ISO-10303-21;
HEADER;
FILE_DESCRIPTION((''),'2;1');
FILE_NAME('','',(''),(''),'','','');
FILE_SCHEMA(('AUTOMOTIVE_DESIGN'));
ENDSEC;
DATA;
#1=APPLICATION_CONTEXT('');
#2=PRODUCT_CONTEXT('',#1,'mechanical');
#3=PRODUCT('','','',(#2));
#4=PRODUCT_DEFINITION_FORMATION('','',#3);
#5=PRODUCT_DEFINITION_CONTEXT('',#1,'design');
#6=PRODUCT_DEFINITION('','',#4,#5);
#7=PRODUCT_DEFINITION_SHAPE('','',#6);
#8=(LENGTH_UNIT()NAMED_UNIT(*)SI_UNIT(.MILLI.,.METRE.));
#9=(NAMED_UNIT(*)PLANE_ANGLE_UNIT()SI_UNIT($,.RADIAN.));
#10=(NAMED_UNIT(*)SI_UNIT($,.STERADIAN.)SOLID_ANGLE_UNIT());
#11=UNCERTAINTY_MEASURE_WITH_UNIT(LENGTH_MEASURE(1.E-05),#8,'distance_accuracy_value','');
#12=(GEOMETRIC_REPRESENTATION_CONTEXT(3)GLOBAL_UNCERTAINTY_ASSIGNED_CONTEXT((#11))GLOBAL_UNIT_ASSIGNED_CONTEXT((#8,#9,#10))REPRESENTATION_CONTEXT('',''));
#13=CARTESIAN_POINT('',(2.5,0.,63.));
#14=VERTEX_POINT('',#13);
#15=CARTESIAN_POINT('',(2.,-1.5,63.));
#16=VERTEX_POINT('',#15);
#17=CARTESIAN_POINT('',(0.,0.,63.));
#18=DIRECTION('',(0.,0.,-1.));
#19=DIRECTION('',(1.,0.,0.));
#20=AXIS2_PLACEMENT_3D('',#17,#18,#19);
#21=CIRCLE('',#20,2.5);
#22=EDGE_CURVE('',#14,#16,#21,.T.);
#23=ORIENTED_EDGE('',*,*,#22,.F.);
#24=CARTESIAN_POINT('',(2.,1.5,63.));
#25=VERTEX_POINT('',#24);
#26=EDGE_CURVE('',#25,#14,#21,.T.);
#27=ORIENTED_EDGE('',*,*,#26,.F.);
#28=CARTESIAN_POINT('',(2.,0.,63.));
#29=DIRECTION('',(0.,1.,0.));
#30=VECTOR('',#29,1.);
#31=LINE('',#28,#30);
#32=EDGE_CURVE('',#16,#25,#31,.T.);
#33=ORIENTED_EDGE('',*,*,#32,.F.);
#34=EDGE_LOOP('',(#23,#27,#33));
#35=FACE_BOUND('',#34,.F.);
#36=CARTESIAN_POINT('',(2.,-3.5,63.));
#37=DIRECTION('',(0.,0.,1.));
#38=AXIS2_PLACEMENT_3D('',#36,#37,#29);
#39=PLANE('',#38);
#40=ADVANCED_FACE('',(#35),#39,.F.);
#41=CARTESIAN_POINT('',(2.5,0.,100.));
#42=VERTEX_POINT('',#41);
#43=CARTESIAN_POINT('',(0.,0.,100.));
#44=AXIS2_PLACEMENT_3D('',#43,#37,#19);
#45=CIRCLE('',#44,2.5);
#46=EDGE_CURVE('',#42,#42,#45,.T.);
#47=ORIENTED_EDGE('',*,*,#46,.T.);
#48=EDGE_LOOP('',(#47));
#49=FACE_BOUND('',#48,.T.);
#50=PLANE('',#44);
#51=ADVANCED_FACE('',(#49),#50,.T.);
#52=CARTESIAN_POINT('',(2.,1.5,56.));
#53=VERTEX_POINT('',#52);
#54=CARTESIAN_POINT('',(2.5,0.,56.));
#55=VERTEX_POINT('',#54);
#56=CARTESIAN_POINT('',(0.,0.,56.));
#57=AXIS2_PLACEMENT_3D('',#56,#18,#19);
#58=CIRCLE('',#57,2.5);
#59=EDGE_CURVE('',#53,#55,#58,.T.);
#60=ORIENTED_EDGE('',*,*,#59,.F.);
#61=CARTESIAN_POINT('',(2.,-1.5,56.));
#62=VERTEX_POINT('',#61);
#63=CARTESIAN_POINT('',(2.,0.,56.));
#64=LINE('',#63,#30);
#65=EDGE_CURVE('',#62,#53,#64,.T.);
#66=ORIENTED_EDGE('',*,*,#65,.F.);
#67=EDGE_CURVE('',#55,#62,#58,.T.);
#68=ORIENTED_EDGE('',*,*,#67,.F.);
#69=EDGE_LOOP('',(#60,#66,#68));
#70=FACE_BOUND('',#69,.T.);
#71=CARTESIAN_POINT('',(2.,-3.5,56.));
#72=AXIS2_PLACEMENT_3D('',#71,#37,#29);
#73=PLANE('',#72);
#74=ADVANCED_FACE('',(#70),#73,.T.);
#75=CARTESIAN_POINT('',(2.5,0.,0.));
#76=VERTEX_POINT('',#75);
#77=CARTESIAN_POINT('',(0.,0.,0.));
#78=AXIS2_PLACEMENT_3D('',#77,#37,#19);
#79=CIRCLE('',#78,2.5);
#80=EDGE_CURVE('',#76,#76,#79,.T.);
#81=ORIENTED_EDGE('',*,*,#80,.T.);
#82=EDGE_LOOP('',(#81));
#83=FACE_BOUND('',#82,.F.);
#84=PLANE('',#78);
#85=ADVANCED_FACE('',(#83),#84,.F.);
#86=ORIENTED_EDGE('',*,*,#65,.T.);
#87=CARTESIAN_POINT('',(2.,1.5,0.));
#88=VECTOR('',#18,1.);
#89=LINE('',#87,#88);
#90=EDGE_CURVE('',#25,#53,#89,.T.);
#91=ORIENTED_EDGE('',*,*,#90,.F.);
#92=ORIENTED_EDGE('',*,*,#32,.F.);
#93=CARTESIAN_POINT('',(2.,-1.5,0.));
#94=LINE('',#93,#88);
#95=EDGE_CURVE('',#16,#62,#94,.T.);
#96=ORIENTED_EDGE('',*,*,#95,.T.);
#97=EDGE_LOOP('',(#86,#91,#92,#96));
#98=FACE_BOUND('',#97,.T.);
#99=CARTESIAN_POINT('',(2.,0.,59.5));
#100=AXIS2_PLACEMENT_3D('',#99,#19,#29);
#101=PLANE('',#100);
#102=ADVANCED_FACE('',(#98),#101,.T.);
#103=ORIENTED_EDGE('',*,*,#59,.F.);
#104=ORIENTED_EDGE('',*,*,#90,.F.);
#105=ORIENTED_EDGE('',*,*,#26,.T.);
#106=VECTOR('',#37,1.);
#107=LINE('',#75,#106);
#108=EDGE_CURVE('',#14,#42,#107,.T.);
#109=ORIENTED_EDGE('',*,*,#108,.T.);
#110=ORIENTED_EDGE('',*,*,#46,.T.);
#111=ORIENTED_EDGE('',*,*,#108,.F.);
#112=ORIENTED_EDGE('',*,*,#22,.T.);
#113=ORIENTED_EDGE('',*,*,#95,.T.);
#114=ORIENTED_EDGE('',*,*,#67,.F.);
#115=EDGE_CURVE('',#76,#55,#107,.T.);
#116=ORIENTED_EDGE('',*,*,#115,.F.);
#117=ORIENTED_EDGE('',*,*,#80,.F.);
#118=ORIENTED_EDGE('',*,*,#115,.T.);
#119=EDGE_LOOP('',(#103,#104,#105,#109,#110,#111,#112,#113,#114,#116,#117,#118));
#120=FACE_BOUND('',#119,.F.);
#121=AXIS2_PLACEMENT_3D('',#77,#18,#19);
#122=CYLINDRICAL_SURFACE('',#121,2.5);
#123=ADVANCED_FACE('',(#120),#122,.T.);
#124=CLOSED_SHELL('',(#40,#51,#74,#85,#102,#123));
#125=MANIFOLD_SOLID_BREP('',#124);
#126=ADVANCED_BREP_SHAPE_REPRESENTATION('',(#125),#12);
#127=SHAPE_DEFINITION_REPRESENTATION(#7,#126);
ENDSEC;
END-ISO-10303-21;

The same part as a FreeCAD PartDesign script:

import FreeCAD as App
import Part
import Sketcher

doc = App.newDocument("Part")
params = doc.addObject("Spreadsheet::Sheet", "Params")
for row, (alias, value) in enumerate([
    ("sketch1_width", "7 mm"),
    ("pad1_length", "2 mm"),
    ("sketch2_diameter", "5 mm"),
    ("pad2_length", "100 mm"),
], start=1):
    params.set(f"A{row}", alias)
    params.set(f"B{row}", "=" + value)
    params.setAlias(f"B{row}", alias)

body = doc.addObject("PartDesign::Body", "Body")

sketch1 = doc.addObject("Sketcher::SketchObject", "Sketch")
body.addObject(sketch1)
sketch1.AttachmentSupport = (doc.YZ_Plane, [""])
sketch1.MapMode = "FlatFace"
sketch1.AttachmentOffset = App.Placement(App.Vector(0, 0, 2), App.Rotation())
sketch1.addGeometry([
    Part.LineSegment(App.Vector(-4, 63, 0), App.Vector(-4, 56, 0)),
    Part.LineSegment(App.Vector(-4, 56, 0), App.Vector(4, 56, 0)),
    Part.LineSegment(App.Vector(4, 56, 0), App.Vector(4, 63, 0)),
    Part.LineSegment(App.Vector(4, 63, 0), App.Vector(-4, 63, 0)),
], False)
sketch1.addConstraint([
    Sketcher.Constraint("Coincident", 0, 2, 1, 1),
    Sketcher.Constraint("Coincident", 1, 2, 2, 1),
    Sketcher.Constraint("Coincident", 2, 2, 3, 1),
    Sketcher.Constraint("Coincident", 3, 2, 0, 1),
    Sketcher.Constraint("Vertical", 0),
    Sketcher.Constraint("Horizontal", 1),
    Sketcher.Constraint("Vertical", 2),
    Sketcher.Constraint("Horizontal", 3),
    Sketcher.Constraint("Equal", 3, 0),
    Sketcher.Constraint("DistanceX", 1, 1, 1, 2, 7.0),
    Sketcher.Constraint("DistanceY", -1, 1, 0, 2, 56.0),
    Sketcher.Constraint("DistanceX", 0, 2, -1, 1, 3.5),
])
sketch1.setExpression("Constraints[9]", "Params.sketch1_width")
pad1 = doc.addObject("PartDesign::Pad", "Pad")
body.addObject(pad1)
pad1.Profile = sketch1
pad1.setExpression("Length", "Params.pad1_length")
body2 = doc.addObject("PartDesign::Body", "Body001")

sketch2 = doc.addObject("Sketcher::SketchObject", "Sketch001")
body2.addObject(sketch2)
sketch2.AttachmentSupport = (doc.getObject("XY_Plane001"), [""])
sketch2.MapMode = "FlatFace"
sketch2.addGeometry(Part.Circle(App.Vector(0, 0, 0), App.Vector(0, 0, 1), 2.5), False)
sketch2.addConstraint([
    Sketcher.Constraint("Coincident", 0, 3, -1, 1),
    Sketcher.Constraint("Diameter", 0, 5.0),
])
sketch2.setExpression("Constraints[1]", "Params.sketch2_diameter")
pad2 = doc.addObject("PartDesign::Pad", "Pad001")
body2.addObject(pad2)
pad2.Profile = sketch2
pad2.setExpression("Length", "Params.pad2_length")
doc.recompute()

boolean = doc.addObject("PartDesign::Boolean", "Boolean")
body2.addObject(boolean)
boolean.Type = "Cut"
boolean.addObjects([body])

doc.recompute()
